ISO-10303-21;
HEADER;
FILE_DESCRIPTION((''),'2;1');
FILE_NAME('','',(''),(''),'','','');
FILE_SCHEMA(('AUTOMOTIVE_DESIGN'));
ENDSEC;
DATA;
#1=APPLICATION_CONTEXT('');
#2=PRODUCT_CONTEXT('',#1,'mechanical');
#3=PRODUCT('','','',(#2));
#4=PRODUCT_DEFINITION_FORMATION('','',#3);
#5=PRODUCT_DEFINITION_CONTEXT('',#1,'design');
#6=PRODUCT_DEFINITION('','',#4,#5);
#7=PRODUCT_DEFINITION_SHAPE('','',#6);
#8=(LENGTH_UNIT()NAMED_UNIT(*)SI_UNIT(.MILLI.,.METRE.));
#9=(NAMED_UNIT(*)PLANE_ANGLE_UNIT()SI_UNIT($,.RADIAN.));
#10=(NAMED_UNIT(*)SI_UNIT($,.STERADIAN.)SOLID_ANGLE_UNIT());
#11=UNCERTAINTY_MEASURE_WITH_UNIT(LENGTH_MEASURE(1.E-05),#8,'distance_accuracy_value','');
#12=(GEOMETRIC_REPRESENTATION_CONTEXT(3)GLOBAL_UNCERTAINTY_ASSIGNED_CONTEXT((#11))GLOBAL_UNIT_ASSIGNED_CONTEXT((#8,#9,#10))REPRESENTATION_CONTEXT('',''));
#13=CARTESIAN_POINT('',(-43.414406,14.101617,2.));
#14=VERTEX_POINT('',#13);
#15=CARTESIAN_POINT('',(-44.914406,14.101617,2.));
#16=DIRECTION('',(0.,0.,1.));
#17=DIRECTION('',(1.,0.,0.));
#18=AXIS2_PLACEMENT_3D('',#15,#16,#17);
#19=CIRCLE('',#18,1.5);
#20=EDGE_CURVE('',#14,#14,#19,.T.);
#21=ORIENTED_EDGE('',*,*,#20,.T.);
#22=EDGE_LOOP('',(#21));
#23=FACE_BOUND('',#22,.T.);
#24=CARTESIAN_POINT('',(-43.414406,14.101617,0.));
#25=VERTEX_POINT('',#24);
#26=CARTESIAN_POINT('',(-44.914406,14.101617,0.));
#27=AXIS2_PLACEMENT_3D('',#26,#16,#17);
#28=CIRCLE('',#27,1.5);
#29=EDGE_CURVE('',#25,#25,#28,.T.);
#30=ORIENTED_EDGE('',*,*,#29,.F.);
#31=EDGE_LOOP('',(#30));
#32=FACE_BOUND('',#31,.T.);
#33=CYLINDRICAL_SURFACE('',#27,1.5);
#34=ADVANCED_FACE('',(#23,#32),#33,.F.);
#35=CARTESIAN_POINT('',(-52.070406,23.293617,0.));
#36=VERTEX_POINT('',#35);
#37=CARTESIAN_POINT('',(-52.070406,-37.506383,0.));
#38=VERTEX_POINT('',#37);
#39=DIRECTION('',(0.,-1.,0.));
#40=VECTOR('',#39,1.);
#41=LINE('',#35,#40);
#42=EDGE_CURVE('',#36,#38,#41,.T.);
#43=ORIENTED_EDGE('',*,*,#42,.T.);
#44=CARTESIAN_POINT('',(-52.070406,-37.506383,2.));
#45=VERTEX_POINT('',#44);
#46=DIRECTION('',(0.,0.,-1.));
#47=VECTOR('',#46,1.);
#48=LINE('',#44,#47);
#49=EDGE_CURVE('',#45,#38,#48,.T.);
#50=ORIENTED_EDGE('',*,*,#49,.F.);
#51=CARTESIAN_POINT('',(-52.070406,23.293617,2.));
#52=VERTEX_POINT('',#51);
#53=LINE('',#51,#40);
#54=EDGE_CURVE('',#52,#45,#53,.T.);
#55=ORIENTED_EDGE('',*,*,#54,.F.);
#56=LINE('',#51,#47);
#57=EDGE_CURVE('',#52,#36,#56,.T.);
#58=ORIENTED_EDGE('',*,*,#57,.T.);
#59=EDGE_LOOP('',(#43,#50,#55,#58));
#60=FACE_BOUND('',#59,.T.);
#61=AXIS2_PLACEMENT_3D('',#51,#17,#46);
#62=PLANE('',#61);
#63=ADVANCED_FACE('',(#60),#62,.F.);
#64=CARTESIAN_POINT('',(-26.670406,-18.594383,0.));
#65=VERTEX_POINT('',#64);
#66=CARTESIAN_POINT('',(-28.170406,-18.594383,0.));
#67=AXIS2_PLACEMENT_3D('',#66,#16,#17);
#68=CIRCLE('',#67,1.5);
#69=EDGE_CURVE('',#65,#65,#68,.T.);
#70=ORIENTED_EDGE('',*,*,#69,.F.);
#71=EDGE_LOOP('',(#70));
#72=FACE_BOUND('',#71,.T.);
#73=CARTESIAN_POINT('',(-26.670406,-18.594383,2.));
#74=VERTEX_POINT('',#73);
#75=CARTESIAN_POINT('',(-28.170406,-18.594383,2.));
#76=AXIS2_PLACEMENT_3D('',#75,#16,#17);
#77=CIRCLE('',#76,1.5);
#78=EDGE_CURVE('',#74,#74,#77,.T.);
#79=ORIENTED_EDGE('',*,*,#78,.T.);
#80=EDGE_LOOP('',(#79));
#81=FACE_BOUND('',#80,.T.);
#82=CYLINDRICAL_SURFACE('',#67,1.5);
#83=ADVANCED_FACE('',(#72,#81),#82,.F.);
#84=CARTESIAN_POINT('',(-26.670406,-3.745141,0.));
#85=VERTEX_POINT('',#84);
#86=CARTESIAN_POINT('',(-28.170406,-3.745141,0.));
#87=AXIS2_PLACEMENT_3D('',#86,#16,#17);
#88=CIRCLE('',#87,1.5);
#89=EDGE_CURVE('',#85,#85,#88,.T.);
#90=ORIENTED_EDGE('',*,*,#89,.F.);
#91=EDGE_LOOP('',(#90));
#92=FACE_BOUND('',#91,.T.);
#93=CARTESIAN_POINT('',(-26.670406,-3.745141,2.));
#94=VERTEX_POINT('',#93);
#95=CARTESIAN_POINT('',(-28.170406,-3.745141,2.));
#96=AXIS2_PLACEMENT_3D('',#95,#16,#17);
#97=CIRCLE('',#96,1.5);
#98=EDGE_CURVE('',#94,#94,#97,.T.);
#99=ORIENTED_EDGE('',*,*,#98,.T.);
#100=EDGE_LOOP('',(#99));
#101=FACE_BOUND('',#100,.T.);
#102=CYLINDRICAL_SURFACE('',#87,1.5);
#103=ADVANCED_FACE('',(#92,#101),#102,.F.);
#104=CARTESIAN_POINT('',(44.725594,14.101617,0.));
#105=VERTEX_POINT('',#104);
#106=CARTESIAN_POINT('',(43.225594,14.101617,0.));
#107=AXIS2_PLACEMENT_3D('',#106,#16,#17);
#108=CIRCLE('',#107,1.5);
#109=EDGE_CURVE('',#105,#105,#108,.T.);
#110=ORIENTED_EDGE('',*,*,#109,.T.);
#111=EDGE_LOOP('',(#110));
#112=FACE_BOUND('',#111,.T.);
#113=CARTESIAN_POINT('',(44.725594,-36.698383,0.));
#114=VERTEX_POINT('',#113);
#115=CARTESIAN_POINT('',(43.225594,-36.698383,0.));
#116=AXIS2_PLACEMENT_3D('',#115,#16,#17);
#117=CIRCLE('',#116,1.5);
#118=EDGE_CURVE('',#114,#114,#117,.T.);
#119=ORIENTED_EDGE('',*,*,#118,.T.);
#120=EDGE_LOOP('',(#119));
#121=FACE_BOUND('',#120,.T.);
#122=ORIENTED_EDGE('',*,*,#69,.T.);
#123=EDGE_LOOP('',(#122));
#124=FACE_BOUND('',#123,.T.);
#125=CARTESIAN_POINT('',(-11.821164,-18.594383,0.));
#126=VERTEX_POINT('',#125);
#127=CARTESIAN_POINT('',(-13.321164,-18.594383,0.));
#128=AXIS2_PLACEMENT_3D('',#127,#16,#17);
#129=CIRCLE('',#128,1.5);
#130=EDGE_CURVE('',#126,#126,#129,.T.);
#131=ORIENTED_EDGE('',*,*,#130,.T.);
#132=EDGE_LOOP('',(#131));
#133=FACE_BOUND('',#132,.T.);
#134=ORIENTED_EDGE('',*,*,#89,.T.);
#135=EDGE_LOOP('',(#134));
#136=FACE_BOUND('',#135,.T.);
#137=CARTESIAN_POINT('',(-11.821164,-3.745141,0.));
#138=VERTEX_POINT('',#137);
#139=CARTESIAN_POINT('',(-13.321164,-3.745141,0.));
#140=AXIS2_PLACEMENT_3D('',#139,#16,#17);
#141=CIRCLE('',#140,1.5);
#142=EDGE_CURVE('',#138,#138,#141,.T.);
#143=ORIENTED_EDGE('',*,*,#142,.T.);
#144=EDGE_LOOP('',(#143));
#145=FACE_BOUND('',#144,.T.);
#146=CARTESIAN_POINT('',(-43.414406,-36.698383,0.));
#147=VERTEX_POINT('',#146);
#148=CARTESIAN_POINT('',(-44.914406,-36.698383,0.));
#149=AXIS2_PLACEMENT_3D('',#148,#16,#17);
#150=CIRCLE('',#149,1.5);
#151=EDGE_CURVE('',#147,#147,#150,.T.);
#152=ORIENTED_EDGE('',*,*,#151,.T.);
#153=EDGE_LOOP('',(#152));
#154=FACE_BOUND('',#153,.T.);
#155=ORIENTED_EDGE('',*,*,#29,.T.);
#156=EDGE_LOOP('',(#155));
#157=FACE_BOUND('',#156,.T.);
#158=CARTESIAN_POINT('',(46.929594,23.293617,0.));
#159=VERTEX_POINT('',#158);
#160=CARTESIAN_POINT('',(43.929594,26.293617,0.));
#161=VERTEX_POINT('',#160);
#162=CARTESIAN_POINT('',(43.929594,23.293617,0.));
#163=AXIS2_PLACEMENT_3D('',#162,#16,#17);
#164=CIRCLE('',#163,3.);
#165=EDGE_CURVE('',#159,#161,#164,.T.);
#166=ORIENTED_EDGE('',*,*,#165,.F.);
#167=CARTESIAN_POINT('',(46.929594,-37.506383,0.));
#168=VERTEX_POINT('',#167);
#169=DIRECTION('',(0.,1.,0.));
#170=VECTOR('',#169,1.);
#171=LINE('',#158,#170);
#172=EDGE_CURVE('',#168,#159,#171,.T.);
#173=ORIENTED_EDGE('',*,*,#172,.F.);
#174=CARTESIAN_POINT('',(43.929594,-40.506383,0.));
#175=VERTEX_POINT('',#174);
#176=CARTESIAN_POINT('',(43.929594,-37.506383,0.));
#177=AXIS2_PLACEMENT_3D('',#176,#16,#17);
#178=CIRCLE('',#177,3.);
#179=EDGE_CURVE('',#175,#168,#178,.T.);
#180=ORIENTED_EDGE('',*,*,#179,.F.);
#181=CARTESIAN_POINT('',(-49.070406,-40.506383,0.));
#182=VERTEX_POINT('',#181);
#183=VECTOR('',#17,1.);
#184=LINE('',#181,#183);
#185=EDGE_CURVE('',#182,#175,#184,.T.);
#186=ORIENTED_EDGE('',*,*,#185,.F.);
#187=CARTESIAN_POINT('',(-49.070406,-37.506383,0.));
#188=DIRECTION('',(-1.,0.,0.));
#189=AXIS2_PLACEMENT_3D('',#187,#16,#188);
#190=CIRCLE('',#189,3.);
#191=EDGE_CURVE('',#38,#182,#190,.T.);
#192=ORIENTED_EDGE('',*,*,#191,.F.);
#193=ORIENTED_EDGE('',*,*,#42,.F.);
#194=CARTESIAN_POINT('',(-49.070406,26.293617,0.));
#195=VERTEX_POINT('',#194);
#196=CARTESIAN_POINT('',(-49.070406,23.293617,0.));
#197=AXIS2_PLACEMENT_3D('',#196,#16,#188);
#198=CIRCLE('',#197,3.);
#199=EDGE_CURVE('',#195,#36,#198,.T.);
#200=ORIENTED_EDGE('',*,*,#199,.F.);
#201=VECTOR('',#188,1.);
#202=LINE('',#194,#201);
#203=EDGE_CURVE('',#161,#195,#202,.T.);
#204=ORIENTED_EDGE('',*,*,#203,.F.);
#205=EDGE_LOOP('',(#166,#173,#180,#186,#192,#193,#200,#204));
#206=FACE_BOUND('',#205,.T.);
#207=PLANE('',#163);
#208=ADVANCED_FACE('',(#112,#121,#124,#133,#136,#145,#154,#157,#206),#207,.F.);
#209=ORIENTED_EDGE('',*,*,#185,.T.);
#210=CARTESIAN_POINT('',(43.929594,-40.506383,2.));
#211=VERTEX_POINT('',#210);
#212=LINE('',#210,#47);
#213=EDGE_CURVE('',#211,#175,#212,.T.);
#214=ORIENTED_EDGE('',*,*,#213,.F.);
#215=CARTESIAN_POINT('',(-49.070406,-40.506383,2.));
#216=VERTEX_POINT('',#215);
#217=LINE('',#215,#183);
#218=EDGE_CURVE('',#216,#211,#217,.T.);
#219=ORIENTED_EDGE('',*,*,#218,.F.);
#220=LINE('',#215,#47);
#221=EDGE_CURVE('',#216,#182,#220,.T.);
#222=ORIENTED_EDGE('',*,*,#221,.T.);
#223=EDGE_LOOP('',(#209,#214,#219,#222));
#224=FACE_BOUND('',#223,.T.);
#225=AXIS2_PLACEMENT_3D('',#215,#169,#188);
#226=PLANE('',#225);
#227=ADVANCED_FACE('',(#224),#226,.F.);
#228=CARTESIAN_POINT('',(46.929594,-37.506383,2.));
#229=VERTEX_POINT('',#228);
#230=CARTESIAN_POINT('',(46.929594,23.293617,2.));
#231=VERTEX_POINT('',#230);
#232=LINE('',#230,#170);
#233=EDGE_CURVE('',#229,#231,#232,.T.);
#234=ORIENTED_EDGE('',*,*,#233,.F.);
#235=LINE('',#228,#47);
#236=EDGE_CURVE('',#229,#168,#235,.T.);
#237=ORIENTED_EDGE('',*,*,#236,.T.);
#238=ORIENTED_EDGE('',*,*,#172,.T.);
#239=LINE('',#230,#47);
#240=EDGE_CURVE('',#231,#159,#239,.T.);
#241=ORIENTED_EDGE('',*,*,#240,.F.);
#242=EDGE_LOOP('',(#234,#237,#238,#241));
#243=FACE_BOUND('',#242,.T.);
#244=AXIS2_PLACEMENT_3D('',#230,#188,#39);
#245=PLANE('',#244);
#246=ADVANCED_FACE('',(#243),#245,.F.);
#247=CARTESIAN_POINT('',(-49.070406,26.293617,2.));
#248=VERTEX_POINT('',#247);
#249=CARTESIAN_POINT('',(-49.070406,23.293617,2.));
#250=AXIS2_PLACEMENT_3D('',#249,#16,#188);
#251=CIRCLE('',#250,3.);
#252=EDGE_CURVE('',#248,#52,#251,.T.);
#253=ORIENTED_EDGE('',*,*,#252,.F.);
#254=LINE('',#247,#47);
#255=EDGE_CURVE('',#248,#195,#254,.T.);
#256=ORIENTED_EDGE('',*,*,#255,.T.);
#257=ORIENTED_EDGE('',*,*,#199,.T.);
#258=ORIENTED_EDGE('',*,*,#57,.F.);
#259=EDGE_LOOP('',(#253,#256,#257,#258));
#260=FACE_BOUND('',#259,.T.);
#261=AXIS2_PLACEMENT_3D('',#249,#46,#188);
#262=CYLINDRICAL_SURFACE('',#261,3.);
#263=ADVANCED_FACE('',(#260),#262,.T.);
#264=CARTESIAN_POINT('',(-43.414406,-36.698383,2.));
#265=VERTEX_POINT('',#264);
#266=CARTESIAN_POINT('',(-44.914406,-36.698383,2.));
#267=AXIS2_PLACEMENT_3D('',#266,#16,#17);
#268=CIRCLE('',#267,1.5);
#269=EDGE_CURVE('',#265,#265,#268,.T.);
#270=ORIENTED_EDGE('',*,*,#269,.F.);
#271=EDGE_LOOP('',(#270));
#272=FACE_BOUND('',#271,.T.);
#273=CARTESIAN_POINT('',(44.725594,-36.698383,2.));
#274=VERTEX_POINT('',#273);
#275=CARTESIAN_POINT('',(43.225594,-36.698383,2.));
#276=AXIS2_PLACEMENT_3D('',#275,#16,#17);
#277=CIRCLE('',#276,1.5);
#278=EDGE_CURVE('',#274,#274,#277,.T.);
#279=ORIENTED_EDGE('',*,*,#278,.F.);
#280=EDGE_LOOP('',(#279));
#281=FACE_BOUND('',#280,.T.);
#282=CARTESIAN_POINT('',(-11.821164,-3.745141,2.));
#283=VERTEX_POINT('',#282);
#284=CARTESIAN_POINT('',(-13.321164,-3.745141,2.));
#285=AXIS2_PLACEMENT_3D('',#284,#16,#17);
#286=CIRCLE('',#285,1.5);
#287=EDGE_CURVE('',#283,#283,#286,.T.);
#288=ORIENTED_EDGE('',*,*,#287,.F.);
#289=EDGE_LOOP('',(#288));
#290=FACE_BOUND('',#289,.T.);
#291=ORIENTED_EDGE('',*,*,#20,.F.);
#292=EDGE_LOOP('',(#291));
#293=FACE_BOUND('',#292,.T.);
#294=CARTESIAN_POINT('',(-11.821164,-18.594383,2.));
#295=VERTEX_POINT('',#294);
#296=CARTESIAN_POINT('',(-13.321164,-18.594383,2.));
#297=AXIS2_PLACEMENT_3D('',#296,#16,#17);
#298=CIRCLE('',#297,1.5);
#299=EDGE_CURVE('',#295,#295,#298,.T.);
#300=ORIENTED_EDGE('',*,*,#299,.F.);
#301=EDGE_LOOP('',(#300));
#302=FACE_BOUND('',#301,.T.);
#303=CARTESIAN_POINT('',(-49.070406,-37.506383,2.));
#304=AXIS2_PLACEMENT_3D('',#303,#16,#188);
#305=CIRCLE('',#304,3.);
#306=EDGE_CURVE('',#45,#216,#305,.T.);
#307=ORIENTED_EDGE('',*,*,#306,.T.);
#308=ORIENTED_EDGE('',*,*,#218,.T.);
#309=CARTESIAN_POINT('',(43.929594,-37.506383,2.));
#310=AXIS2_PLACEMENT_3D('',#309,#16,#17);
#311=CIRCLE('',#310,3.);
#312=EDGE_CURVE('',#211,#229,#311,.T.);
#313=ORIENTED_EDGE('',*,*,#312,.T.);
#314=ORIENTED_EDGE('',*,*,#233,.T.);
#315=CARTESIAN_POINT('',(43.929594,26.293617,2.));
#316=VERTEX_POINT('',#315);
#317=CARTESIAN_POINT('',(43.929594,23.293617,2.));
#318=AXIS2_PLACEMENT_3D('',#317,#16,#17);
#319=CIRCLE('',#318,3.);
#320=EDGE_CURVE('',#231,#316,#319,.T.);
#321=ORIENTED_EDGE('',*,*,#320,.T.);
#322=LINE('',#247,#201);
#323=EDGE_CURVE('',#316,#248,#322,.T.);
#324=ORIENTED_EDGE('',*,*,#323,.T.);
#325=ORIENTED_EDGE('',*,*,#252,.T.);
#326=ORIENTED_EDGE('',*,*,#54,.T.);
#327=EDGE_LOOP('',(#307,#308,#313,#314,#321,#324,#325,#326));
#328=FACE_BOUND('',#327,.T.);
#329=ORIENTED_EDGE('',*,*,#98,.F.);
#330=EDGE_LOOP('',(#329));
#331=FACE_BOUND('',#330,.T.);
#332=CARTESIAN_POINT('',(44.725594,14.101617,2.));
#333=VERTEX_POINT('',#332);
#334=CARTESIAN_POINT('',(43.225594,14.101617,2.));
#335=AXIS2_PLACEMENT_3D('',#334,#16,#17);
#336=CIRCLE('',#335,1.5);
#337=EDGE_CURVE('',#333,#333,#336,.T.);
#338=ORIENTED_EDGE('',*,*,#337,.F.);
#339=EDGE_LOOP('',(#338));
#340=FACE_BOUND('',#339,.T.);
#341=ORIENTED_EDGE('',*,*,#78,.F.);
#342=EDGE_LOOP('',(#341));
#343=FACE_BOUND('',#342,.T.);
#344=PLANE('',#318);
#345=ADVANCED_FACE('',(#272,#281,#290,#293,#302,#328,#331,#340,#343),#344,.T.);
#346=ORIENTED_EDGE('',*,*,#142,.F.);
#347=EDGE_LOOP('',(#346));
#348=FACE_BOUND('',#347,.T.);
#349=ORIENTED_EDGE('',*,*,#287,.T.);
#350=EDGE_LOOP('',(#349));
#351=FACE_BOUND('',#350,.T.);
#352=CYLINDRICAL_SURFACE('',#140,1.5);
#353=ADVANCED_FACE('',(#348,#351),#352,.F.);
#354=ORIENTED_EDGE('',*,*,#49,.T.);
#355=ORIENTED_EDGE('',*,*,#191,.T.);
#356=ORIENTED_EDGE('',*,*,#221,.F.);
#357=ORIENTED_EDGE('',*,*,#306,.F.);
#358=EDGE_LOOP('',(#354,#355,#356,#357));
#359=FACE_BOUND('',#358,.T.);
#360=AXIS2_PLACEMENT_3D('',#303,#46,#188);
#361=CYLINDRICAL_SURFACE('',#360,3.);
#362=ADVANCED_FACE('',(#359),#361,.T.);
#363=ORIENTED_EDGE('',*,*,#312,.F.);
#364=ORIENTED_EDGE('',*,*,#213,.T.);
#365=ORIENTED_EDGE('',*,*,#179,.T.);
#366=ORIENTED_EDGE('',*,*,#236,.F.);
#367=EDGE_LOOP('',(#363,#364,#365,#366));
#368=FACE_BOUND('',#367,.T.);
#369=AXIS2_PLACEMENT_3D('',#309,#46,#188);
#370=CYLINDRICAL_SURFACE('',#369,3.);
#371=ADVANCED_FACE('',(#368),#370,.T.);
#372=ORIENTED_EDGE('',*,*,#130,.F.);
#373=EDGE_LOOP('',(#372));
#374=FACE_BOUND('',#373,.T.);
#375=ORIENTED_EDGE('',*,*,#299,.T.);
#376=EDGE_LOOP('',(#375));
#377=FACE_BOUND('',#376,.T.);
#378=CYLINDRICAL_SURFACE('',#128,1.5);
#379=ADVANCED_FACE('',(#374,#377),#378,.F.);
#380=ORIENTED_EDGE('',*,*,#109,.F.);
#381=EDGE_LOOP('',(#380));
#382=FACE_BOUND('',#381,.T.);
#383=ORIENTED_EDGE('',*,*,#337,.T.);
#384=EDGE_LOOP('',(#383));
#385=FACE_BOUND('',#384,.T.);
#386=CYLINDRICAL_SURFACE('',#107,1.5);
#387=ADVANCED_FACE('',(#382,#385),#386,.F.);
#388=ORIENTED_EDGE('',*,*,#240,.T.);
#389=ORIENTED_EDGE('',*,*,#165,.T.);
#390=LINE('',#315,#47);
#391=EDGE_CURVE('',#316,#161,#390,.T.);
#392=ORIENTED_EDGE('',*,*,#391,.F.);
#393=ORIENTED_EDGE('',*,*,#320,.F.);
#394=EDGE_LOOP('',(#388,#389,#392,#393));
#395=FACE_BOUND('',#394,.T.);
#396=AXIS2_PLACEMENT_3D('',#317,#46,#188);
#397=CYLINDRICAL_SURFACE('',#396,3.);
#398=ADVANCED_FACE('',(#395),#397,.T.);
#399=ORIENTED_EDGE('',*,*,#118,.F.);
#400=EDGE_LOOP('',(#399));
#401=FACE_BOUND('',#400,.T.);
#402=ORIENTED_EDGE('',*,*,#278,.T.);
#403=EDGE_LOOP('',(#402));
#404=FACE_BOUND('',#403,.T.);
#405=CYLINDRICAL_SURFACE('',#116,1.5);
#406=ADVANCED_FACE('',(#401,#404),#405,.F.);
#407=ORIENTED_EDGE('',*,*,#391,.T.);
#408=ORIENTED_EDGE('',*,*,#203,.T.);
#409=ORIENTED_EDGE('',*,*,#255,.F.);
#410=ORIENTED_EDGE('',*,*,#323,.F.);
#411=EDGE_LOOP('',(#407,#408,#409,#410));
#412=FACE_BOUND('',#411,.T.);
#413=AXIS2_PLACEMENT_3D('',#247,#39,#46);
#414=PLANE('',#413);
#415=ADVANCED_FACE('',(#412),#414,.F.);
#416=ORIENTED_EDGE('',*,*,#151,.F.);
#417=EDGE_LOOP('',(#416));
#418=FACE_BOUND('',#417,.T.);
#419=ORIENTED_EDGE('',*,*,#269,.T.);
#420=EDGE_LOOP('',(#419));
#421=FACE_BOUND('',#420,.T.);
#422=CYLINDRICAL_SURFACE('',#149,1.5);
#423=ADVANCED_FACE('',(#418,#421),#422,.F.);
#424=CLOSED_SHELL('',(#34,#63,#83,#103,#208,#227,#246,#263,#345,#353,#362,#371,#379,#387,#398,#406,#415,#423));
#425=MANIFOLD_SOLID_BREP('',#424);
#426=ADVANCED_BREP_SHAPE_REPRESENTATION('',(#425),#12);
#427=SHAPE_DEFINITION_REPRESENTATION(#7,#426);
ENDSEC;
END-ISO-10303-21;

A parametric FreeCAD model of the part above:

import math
import FreeCAD as App
import Part
import Sketcher

doc = App.newDocument("Part")
body = doc.addObject("PartDesign::Body", "Body")

# Sketch on XY plane
sketch1 = body.newObject("Sketcher::SketchObject", "Sketch")
sketch1.AttachmentSupport = (doc.getObject("XY_Plane"), [""])
sketch1.MapMode = "FlatFace"
sketch1.addGeometry([
    Part.LineSegment(App.Vector(43.9, 26.3, 0), App.Vector(-49.1, 26.3, 0)),  # 0
    Part.ArcOfCircle(Part.Circle(App.Vector(-49.1, 23.3, 0), App.Vector(0, 0, 1), 3), math.radians(90), math.radians(180)),  # 1
    Part.LineSegment(App.Vector(-52.1, 23.3, 0), App.Vector(-52.1, -37.5, 0)),  # 2
    Part.ArcOfCircle(Part.Circle(App.Vector(-49.1, -37.5, 0), App.Vector(0, 0, 1), 3), math.radians(-180), math.radians(-90)),  # 3
    Part.LineSegment(App.Vector(-49.1, -40.5, 0), App.Vector(43.9, -40.5, 0)),  # 4
    Part.ArcOfCircle(Part.Circle(App.Vector(43.9, -37.5, 0), App.Vector(0, 0, 1), 3), math.radians(-90), math.radians(0)),  # 5
    Part.LineSegment(App.Vector(46.9, -37.5, 0), App.Vector(46.9, 23.3, 0)),  # 6
    Part.ArcOfCircle(Part.Circle(App.Vector(43.9, 23.3, 0), App.Vector(0, 0, 1), 3), math.radians(0), math.radians(90)),  # 7
], False)
sketch1.addConstraint([
    Sketcher.Constraint("Tangent", 0, 2, 1, 1),
    Sketcher.Constraint("Tangent", 1, 2, 2, 1),
    Sketcher.Constraint("Tangent", 2, 2, 3, 1),
    Sketcher.Constraint("Tangent", 3, 2, 4, 1),
    Sketcher.Constraint("Tangent", 4, 2, 5, 1),
    Sketcher.Constraint("Tangent", 5, 2, 6, 1),
    Sketcher.Constraint("Tangent", 6, 2, 7, 1),
    Sketcher.Constraint("Tangent", 7, 2, 0, 1),
    Sketcher.Constraint("Horizontal", 0),
    Sketcher.Constraint("Vertical", 2),
    Sketcher.Constraint("Horizontal", 4),
    Sketcher.Constraint("Vertical", 6),
    Sketcher.Constraint("Equal", 1, 3),
    Sketcher.Constraint("Equal", 3, 5),
    Sketcher.Constraint("Equal", 5, 7),
    Sketcher.Constraint("Radius", 1, 3.0),
    Sketcher.Constraint("DistanceX", 0, 2, 0, 1, 93.0),
    Sketcher.Constraint("DistanceY", 2, 2, 2, 1, 60.8),
    Sketcher.Constraint("DistanceX", 1, 3, -1, 1, 49.070406),
    Sketcher.Constraint("DistanceY", -1, 1, 1, 3, 23.293617),
])
pad1 = body.newObject("PartDesign::Pad", "Pad")
pad1.Profile = sketch1
pad1.Length = 2

# Sketch on XY plane
sketch2 = body.newObject("Sketcher::SketchObject", "Sketch001")
sketch2.AttachmentSupport = (doc.getObject("XY_Plane"), [""])
sketch2.MapMode = "FlatFace"
sketch2.AttachmentOffset = App.Placement(App.Vector(0, 0, 2), App.Rotation())
sketch2.addGeometry([
    Part.Circle(App.Vector(-44.9, 14.1, 0), App.Vector(0, 0, 1), 1.5),  # 0
    Part.Circle(App.Vector(43.2, 14.1, 0), App.Vector(0, 0, 1), 1.5),  # 1
    Part.Circle(App.Vector(-44.9, -36.7, 0), App.Vector(0, 0, 1), 1.5),  # 2
    Part.Circle(App.Vector(43.2, -36.7, 0), App.Vector(0, 0, 1), 1.5),  # 3
    Part.Circle(App.Vector(-28.2, -3.7, 0), App.Vector(0, 0, 1), 1.5),  # 4
    Part.Circle(App.Vector(-28.2, -18.6, 0), App.Vector(0, 0, 1), 1.5),  # 5
    Part.Circle(App.Vector(-13.3, -3.7, 0), App.Vector(0, 0, 1), 1.5),  # 6
    Part.Circle(App.Vector(-13.3, -18.6, 0), App.Vector(0, 0, 1), 1.5),  # 7
], False)
sketch2.addConstraint([
    Sketcher.Constraint("Equal", 0, 1),
    Sketcher.Constraint("Equal", 1, 2),
    Sketcher.Constraint("Equal", 2, 3),
    Sketcher.Constraint("Equal", 3, 4),
    Sketcher.Constraint("Equal", 4, 5),
    Sketcher.Constraint("Equal", 5, 6),
    Sketcher.Constraint("Equal", 6, 7),
    Sketcher.Constraint("Horizontal", 0, 3, 1, 3),
    Sketcher.Constraint("Horizontal", 2, 3, 3, 3),
    Sketcher.Constraint("Horizontal", 4, 3, 6, 3),
    Sketcher.Constraint("Horizontal", 5, 3, 7, 3),
    Sketcher.Constraint("Vertical", 0, 3, 2, 3),
    Sketcher.Constraint("Vertical", 1, 3, 3, 3),
    Sketcher.Constraint("Vertical", 4, 3, 5, 3),
    Sketcher.Constraint("Vertical", 6, 3, 7, 3),
    Sketcher.Constraint("Diameter", 0, 3.0),
    Sketcher.Constraint("DistanceY", 2, 3, 0, 3, 50.8),
    Sketcher.Constraint("DistanceX", 0, 3, 1, 3, 88.14),
    Sketcher.Constraint("DistanceX", 0, 3, 4, 3, 16.744),
    Sketcher.Constraint("DistanceY", 2, 3, 5, 3, 18.104),
    Sketcher.Constraint("DistanceY", 4, 3, -1, 1, 3.745141),
    Sketcher.Constraint("DistanceX", 0, 3, -1, 1, 44.914406),
    Sketcher.Constraint("DistanceY", -1, 1, 0, 3, 14.101617),
    Sketcher.Constraint("DistanceX", 6, 3, -1, 1, 13.321164),
])
pocket1 = body.newObject("PartDesign::Pocket", "Pocket")
pocket1.Profile = sketch2
pocket1.Length = 2

doc.recompute()
